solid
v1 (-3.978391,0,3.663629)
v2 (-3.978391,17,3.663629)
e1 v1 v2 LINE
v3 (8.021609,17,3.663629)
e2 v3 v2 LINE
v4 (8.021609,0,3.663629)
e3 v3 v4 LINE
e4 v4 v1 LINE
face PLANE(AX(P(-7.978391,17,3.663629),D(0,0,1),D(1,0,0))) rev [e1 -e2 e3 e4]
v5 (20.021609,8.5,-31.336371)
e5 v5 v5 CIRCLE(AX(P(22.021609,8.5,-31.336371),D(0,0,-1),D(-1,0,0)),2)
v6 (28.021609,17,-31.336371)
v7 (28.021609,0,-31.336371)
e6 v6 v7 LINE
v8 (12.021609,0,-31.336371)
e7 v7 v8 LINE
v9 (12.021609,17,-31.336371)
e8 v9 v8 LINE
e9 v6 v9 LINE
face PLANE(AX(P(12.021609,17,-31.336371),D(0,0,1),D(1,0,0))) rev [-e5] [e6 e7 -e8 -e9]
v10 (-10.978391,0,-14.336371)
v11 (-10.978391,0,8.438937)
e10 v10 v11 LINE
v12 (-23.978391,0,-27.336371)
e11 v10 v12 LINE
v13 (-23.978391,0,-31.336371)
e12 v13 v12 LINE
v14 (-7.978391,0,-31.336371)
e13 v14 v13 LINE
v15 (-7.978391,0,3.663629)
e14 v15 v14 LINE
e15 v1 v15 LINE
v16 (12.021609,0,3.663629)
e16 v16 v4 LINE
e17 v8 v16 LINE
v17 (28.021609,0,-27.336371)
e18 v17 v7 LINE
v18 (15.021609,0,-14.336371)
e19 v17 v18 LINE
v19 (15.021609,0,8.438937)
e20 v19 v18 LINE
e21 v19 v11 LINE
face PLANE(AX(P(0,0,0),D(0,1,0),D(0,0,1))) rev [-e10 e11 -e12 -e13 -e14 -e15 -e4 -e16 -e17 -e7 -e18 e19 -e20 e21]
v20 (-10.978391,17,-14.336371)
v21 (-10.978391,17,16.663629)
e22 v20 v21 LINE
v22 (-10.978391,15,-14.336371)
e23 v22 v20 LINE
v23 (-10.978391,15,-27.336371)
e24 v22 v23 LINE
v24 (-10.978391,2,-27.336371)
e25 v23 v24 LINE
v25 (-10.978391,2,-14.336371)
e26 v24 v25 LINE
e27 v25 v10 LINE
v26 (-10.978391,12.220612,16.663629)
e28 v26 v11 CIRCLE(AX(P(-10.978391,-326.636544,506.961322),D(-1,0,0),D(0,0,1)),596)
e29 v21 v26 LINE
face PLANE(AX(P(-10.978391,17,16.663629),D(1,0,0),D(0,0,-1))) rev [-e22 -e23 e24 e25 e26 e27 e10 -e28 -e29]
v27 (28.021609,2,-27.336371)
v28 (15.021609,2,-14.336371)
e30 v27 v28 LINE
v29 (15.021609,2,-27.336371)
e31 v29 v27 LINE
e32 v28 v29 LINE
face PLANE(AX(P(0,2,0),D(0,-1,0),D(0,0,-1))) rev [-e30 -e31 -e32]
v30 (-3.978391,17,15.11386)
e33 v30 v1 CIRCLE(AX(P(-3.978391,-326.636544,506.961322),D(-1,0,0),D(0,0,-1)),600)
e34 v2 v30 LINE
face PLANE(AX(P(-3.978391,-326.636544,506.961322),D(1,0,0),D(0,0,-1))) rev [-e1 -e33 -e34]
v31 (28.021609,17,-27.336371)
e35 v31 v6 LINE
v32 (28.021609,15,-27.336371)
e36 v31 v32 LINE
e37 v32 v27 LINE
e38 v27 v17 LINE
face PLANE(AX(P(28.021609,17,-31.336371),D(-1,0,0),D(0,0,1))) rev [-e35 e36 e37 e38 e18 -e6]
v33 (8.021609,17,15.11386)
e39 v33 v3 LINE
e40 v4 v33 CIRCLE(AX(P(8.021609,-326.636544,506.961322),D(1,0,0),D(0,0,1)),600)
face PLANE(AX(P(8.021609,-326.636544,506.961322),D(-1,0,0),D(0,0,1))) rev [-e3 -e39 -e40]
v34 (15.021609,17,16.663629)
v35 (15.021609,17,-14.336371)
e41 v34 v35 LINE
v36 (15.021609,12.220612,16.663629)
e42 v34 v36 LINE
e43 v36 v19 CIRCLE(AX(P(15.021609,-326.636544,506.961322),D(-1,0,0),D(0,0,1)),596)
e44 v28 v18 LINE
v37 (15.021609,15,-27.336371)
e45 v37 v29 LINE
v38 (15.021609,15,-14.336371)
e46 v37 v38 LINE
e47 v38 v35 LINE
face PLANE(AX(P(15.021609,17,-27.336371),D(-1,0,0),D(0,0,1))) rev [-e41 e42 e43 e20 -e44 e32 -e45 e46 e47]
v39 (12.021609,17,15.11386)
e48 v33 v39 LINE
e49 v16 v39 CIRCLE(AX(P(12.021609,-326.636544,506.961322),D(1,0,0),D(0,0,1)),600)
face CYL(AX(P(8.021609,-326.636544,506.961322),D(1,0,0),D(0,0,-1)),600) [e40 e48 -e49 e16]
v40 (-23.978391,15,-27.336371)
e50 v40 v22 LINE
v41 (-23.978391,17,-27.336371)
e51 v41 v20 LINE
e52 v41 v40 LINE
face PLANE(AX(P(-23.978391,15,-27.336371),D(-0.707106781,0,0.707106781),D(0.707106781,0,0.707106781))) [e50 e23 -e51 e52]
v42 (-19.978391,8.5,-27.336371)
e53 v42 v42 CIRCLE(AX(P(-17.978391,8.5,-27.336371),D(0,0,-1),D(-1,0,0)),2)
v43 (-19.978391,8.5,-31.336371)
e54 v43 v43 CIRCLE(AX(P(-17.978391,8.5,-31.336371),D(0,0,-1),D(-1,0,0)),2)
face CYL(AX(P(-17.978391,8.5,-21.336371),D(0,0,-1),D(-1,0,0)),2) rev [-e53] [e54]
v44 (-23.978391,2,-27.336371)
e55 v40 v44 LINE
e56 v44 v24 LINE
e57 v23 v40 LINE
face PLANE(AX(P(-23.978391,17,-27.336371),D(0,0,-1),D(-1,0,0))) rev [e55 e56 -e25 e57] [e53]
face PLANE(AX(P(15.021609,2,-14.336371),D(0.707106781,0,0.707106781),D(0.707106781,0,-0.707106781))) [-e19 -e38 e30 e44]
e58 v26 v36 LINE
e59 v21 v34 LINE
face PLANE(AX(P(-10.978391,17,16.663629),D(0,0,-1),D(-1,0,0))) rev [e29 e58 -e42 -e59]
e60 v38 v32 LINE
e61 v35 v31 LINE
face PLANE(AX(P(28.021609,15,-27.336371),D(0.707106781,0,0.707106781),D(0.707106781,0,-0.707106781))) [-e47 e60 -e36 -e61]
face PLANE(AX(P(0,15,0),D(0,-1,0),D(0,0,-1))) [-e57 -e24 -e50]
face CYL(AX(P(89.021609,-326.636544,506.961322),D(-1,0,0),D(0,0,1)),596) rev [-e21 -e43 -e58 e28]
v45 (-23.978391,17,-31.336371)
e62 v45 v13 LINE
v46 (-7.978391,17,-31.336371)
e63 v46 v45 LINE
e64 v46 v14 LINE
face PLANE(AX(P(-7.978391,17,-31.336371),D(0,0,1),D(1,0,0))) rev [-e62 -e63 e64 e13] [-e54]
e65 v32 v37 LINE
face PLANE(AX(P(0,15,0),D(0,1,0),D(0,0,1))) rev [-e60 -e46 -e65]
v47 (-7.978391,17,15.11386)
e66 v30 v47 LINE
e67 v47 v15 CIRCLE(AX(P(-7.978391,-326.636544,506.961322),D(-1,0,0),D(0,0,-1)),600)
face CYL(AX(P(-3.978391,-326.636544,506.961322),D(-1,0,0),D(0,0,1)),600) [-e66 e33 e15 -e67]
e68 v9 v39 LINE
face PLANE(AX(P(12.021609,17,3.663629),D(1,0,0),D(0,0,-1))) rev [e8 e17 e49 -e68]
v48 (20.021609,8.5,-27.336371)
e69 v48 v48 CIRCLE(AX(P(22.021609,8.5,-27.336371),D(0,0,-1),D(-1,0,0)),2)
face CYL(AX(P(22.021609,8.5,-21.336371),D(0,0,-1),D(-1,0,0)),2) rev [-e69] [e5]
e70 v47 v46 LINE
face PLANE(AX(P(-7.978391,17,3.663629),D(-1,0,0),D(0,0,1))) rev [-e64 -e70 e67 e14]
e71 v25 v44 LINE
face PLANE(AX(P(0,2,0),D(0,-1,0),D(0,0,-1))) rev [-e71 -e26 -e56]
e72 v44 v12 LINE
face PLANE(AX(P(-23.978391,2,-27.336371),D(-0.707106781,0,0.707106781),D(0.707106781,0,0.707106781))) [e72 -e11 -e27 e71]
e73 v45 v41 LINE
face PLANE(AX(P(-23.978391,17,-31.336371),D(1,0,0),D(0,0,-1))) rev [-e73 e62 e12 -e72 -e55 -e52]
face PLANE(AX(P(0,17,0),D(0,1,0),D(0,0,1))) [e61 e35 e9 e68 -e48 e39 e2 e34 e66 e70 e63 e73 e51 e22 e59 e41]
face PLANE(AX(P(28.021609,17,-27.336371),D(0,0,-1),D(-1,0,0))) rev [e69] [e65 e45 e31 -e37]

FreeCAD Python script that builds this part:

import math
import FreeCAD as App
import Part
import Sketcher
Q = App.Units.Quantity

doc = App.newDocument("Part")
body = doc.addObject("PartDesign::Body", "Body")

# Sketch on XZ plane
sketch1 = body.newObject("Sketcher::SketchObject", "Sketch")
sketch1.AttachmentSupport = (doc.getObject("XZ_Plane"), [""])
sketch1.MapMode = "FlatFace"
sketch1.addGeometry([
    Part.LineSegment(App.Vector(12.021609, 3.663629, 0), App.Vector(-7.978391, 3.663629, 0)),  # 0
    Part.LineSegment(App.Vector(-7.978391, 3.663629, 0), App.Vector(-7.978391, -31.336371, 0)),  # 1
    Part.LineSegment(App.Vector(-7.978391, -31.336371, 0), App.Vector(-23.978391, -31.336371, 0)),  # 2
    Part.LineSegment(App.Vector(-23.978391, -31.336371, 0), App.Vector(-23.978391, -27.336371, 0)),  # 3
    Part.LineSegment(App.Vector(-23.978391, -27.336371, 0), App.Vector(-10.978391, -27.336371, 0)),  # 4
    Part.LineSegment(App.Vector(-10.978391, -27.336371, 0), App.Vector(-10.978391, 16.663629, 0)),  # 5
    Part.LineSegment(App.Vector(-10.978391, 16.663629, 0), App.Vector(15.021609, 16.663629, 0)),  # 6
    Part.LineSegment(App.Vector(15.021609, 16.663629, 0), App.Vector(15.021609, -27.336371, 0)),  # 7
    Part.LineSegment(App.Vector(15.021609, -27.336371, 0), App.Vector(28.021609, -27.336371, 0)),  # 8
    Part.LineSegment(App.Vector(28.021609, -27.336371, 0), App.Vector(28.021609, -31.336371, 0)),  # 9
    Part.LineSegment(App.Vector(28.021609, -31.336371, 0), App.Vector(12.021609, -31.336371, 0)),  # 10
    Part.LineSegment(App.Vector(12.021609, -31.336371, 0), App.Vector(12.021609, 3.663629, 0)),  # 11
], False)
sketch1.addConstraint([
    Sketcher.Constraint("Coincident", 0, 2, 1, 1),
    Sketcher.Constraint("Coincident", 1, 2, 2, 1),
    Sketcher.Constraint("Coincident", 2, 2, 3, 1),
    Sketcher.Constraint("Coincident", 3, 2, 4, 1),
    Sketcher.Constraint("Coincident", 4, 2, 5, 1),
    Sketcher.Constraint("Coincident", 5, 2, 6, 1),
    Sketcher.Constraint("Coincident", 6, 2, 7, 1),
    Sketcher.Constraint("Coincident", 7, 2, 8, 1),
    Sketcher.Constraint("Coincident", 8, 2, 9, 1),
    Sketcher.Constraint("Coincident", 9, 2, 10, 1),
    Sketcher.Constraint("Coincident", 10, 2, 11, 1),
    Sketcher.Constraint("Coincident", 11, 2, 0, 1),
    Sketcher.Constraint("Horizontal", 0),
    Sketcher.Constraint("Vertical", 1),
    Sketcher.Constraint("Horizontal", 2),
    Sketcher.Constraint("Vertical", 3),
    Sketcher.Constraint("Horizontal", 4),
    Sketcher.Constraint("Vertical", 5),
    Sketcher.Constraint("Horizontal", 6),
    Sketcher.Constraint("Vertical", 7),
    Sketcher.Constraint("Horizontal", 8),
    Sketcher.Constraint("Vertical", 9),
    Sketcher.Constraint("Horizontal", 10),
    Sketcher.Constraint("Vertical", 11),
    Sketcher.Constraint("Horizontal", 4, 2, 7, 2),
    Sketcher.Constraint("Horizontal", 2, 2, 9, 2),
    Sketcher.Constraint("Equal", 4, 8),
    Sketcher.Constraint("Equal", 2, 10),
    Sketcher.Constraint("DistanceX", 0, 2, 0, 1, Q("20 mm")),
    Sketcher.Constraint("DistanceX", 2, 2, 2, 1, Q("16 mm")),
    Sketcher.Constraint("DistanceX", 4, 1, 4, 2, Q("13 mm")),
    Sketcher.Constraint("DistanceY", 1, 2, 1, 1, Q("35 mm")),
    Sketcher.Constraint("DistanceY", 3, 1, 3, 2, Q("4 mm")),
    Sketcher.Constraint("DistanceY", 5, 1, 5, 2, Q("44 mm")),
    Sketcher.Constraint("DistanceX", 0, 2, -1, 1, Q("7.978391 mm")),
    Sketcher.Constraint("DistanceY", -1, 1, 0, 2, Q("3.663629 mm")),
])
pad1 = body.newObject("PartDesign::Pad", "Pad")
pad1.Profile = sketch1
pad1.Length = 17
pad1.Reversed = True

# Sketch on XZ plane
sketch2 = body.newObject("Sketcher::SketchObject", "Sketch001")
sketch2.AttachmentSupport = (doc.getObject("XZ_Plane"), [""])
sketch2.MapMode = "FlatFace"
sketch2.AttachmentOffset = App.Placement(App.Vector(0, 0, -17), App.Rotation())
sketch2.addGeometry([
    Part.LineSegment(App.Vector(-23.978391, -27.336371, 0), App.Vector(-10.978391, -14.336371, 0)),  # 0
    Part.LineSegment(App.Vector(-10.978391, -14.336371, 0), App.Vector(-10.978391, -27.336371, 0)),  # 1
    Part.LineSegment(App.Vector(-10.978391, -27.336371, 0), App.Vector(-23.978391, -27.336371, 0)),  # 2
    Part.LineSegment(App.Vector(15.021609, -14.336371, 0), App.Vector(28.021609, -27.336371, 0)),  # 3
    Part.LineSegment(App.Vector(28.021609, -27.336371, 0), App.Vector(15.021609, -27.336371, 0)),  # 4
    Part.LineSegment(App.Vector(15.021609, -27.336371, 0), App.Vector(15.021609, -14.336371, 0)),  # 5
], False)
sketch2.addConstraint([
    Sketcher.Constraint("Coincident", 0, 2, 1, 1),
    Sketcher.Constraint("Coincident", 1, 2, 2, 1),
    Sketcher.Constraint("Coincident", 2, 2, 0, 1),
    Sketcher.Constraint("Coincident", 3, 2, 4, 1),
    Sketcher.Constraint("Coincident", 4, 2, 5, 1),
    Sketcher.Constraint("Coincident", 5, 2, 3, 1),
    Sketcher.Constraint("Vertical", 1),
    Sketcher.Constraint("Horizontal", 2),
    Sketcher.Constraint("Horizontal", 4),
    Sketcher.Constraint("Vertical", 5),
    Sketcher.Constraint("Perpendicular", 0, 3),
    Sketcher.Constraint("Horizontal", 2, 2, 3, 2),
    Sketcher.Constraint("Horizontal", 0, 2, 5, 2),
    Sketcher.Constraint("Equal", 2, 4),
    Sketcher.Constraint("DistanceX", 2, 2, 2, 1, Q("13 mm")),
    Sketcher.Constraint("DistanceX", 1, 2, 3, 2, Q("39 mm")),
    Sketcher.Constraint("DistanceX", 0, 2, -1, 1, Q("10.978391 mm")),
    Sketcher.Constraint("DistanceY", 0, 2, -1, 1, Q("14.336371 mm")),
])
pad2 = body.newObject("PartDesign::Pad", "Pad001")
pad2.Profile = sketch2
pad2.Length = 2

# Sketch on XZ plane
sketch3 = body.newObject("Sketcher::SketchObject", "Sketch002")
sketch3.AttachmentSupport = (doc.getObject("XZ_Plane"), [""])
sketch3.MapMode = "FlatFace"
sketch3.addGeometry([
    Part.LineSegment(App.Vector(-10.978391, -14.336371, 0), App.Vector(-23.978391, -27.336371, 0)),  # 0
    Part.LineSegment(App.Vector(-23.978391, -27.336371, 0), App.Vector(-10.978391, -27.336371, 0)),  # 1
    Part.LineSegment(App.Vector(-10.978391, -27.336371, 0), App.Vector(-10.978391, -14.336371, 0)),  # 2
    Part.LineSegment(App.Vector(28.021609, -27.336371, 0), App.Vector(15.021609, -14.336371, 0)),  # 3
    Part.LineSegment(App.Vector(15.021609, -14.336371, 0), App.Vector(15.021609, -27.336371, 0)),  # 4
    Part.LineSegment(App.Vector(15.021609, -27.336371, 0), App.Vector(28.021609, -27.336371, 0)),  # 5
], False)
sketch3.addConstraint([
    Sketcher.Constraint("Coincident", 0, 2, 1, 1),
    Sketcher.Constraint("Coincident", 1, 2, 2, 1),
    Sketcher.Constraint("Coincident", 2, 2, 0, 1),
    Sketcher.Constraint("Coincident", 3, 2, 4, 1),
    Sketcher.Constraint("Coincident", 4, 2, 5, 1),
    Sketcher.Constraint("Coincident", 5, 2, 3, 1),
    Sketcher.Constraint("Horizontal", 1),
    Sketcher.Constraint("Vertical", 2),
    Sketcher.Constraint("Vertical", 4),
    Sketcher.Constraint("Horizontal", 5),
    Sketcher.Constraint("Perpendicular", 0, 3),
    Sketcher.Constraint("Horizontal", 2, 2, 3, 2),
    Sketcher.Constraint("Horizontal", 1, 2, 4, 2),
    Sketcher.Constraint("Equal", 1, 5),
    Sketcher.Constraint("DistanceX", 1, 1, 1, 2, Q("13 mm")),
    Sketcher.Constraint("DistanceX", 2, 2, 3, 2, Q("26 mm")),
    Sketcher.Constraint("DistanceX", 0, 2, -1, 1, Q("23.978391 mm")),
    Sketcher.Constraint("DistanceY", 0, 2, -1, 1, Q("27.336371 mm")),
])
pad3 = body.newObject("PartDesign::Pad", "Pad002")
pad3.Profile = sketch3
pad3.Length = 2
pad3.Reversed = True

# Sketch on XY plane
sketch4 = body.newObject("Sketcher::SketchObject", "Sketch003")
sketch4.AttachmentSupport = (doc.getObject("XY_Plane"), [""])
sketch4.MapMode = "FlatFace"
sketch4.AttachmentOffset = App.Placement(App.Vector(0, 0, -31.336371), App.Rotation())
sketch4.addGeometry([
    Part.Circle(App.Vector(22.021609, 8.5, 0), App.Vector(0, 0, 1), 2),
    Part.Circle(App.Vector(-17.978391, 8.5, 0), App.Vector(0, 0, 1), 2),
], False)
sketch4.addConstraint([
    Sketcher.Constraint("Equal", 0, 1),
    Sketcher.Constraint("Horizontal", 0, 3, 1, 3),
    Sketcher.Constraint("Diameter", 0, Q("4 mm")),
    Sketcher.Constraint("DistanceX", 1, 3, 0, 3, Q("40 mm")),
    Sketcher.Constraint("DistanceY", -1, 1, 0, 3, Q("8.5 mm")),
    Sketcher.Constraint("DistanceX", -1, 1, 0, 3, Q("22.021609 mm")),
])
pocket1 = body.newObject("PartDesign::Pocket", "Pocket")
pocket1.Profile = sketch4
pocket1.Length = 10
pocket1.Reversed = True

# Sketch on YZ plane
sketch5 = body.newObject("Sketcher::SketchObject", "Sketch004")
sketch5.AttachmentSupport = (doc.getObject("YZ_Plane"), [""])
sketch5.MapMode = "FlatFace"
sketch5.AttachmentOffset = App.Placement(App.Vector(0, 0, -7.978391), App.Rotation())
sketch5.addGeometry([
    Part.LineSegment(App.Vector(17, -6.66026, 0), App.Vector(17, 15.11386, 0)),
    Part.ArcOfCircle(Part.Circle(App.Vector(-326.636544, 506.961322, 0), App.Vector(0, 0, 1), 600), math.radians(-57.016722), math.radians(-55.059352)),
    Part.LineSegment(App.Vector(0, 3.663629, 0), App.Vector(0, -9.599292, 0)),
    Part.LineSegment(App.Vector(0, -9.599292, 0), App.Vector(17, -6.66026, 0)),
], False)
sketch5.addConstraint([
    Sketcher.Constraint("Coincident", 0, 2, 1, 2),
    Sketcher.Constraint("Coincident", 1, 1, 2, 1),
    Sketcher.Constraint("Coincident", 2, 2, 3, 1),
    Sketcher.Constraint("Coincident", 3, 2, 0, 1),
    Sketcher.Constraint("Vertical", 0),
    Sketcher.Constraint("Vertical", 2),
    Sketcher.Constraint("PointOnObject", 2, 2, -2),
    Sketcher.Constraint("Radius", 1, Q("600 mm")),
    Sketcher.Constraint("DistanceX", -1, 1, 0, 2, Q("17 mm")),
    Sketcher.Constraint("DistanceY", 0, 1, 0, 2, Q("21.77412 mm")),
    Sketcher.Constraint("DistanceY", 2, 2, 2, 1, Q("13.262921 mm")),
    Sketcher.Constraint("DistanceY", -1, 1, 1, 3, Q("506.961322 mm")),
    Sketcher.Constraint("DistanceY", -1, 1, 0, 2, Q("15.11386 mm")),
])
pocket2 = body.newObject("PartDesign::Pocket", "Pocket001")
pocket2.Profile = sketch5
pocket2.Length = 4
pocket2.Reversed = True

# Sketch on YZ plane
sketch6 = body.newObject("Sketcher::SketchObject", "Sketch005")
sketch6.AttachmentSupport = (doc.getObject("YZ_Plane"), [""])
sketch6.MapMode = "FlatFace"
sketch6.AttachmentOffset = App.Placement(App.Vector(0, 0, -10.978391), App.Rotation())
sketch6.addGeometry([
    Part.LineSegment(App.Vector(12.975801, 46.650832, 0), App.Vector(19.275621, 21.615287, 0)),
    Part.ArcOfCircle(Part.Circle(App.Vector(-326.636543, 506.961321, 0), App.Vector(0, 0, 1), 595.999999), math.radians(-58.404094), math.radians(-54.522055)),
    Part.LineSegment(App.Vector(-14.377221, -0.690247, 0), App.Vector(-26.911994, 28.995854, 0)),
    Part.LineSegment(App.Vector(-26.911994, 28.995854, 0), App.Vector(12.975801, 46.650832, 0)),
], False)
sketch6.addConstraint([
    Sketcher.Constraint("Coincident", 0, 2, 1, 2),
    Sketcher.Constraint("Coincident", 1, 1, 2, 1),
    Sketcher.Constraint("Coincident", 2, 2, 3, 1),
    Sketcher.Constraint("Coincident", 3, 2, 0, 1),
    Sketcher.Constraint("Radius", 1, Q("595.999999 mm")),
    Sketcher.Constraint("DistanceX", -1, 1, 3, 2, Q("12.975801 mm")),
    Sketcher.Constraint("DistanceY", 1, 1, 2, 2, Q("29.6861 mm")),
    Sketcher.Constraint("DistanceY", -1, 1, 1, 3, Q("506.961321 mm")),
    Sketcher.Constraint("DistanceX", -1, 1, 0, 2, Q("19.275621 mm")),
    Sketcher.Constraint("DistanceX", 1, 3, 2, 2, Q("299.724549 mm")),
    Sketcher.Constraint("DistanceY", 2, 2, 3, 2, Q("17.654979 mm")),
    Sketcher.Constraint("DistanceY", 3, 2, 1, 3, Q("460.310489 mm")),
    Sketcher.Constraint("Distance", 0, Q("25.816008 mm")),
])
pocket3 = body.newObject("PartDesign::Pocket", "Pocket002")
pocket3.Profile = sketch6
pocket3.Length = 100
pocket3.Reversed = True

# Sketch on YZ plane
sketch7 = body.newObject("Sketcher::SketchObject", "Sketch006")
sketch7.AttachmentSupport = (doc.getObject("YZ_Plane"), [""])
sketch7.MapMode = "FlatFace"
sketch7.AttachmentOffset = App.Placement(App.Vector(0, 0, 12.021609), App.Rotation())
sketch7.addGeometry([
    Part.LineSegment(App.Vector(17, -11.188224, 0), App.Vector(0, -11.188224, 0)),
    Part.LineSegment(App.Vector(0, -11.188224, 0), App.Vector(0, 3.663629, 0)),
    Part.ArcOfCircle(Part.Circle(App.Vector(-326.636544, 506.961322, 0), App.Vector(0, 0, 1), 600), math.radians(-57.016722), math.radians(-55.059352)),
    Part.LineSegment(App.Vector(17, 15.11386, 0), App.Vector(17, -11.188224, 0)),
], False)
sketch7.addConstraint([
    Sketcher.Constraint("Coincident", 0, 2, 1, 1),
    Sketcher.Constraint("Coincident", 1, 2, 2, 1),
    Sketcher.Constraint("Coincident", 2, 2, 3, 1),
    Sketcher.Constraint("Coincident", 3, 2, 0, 1),
    Sketcher.Constraint("Horizontal", 0),
    Sketcher.Constraint("Vertical", 1),
    Sketcher.Constraint("Vertical", 3),
    Sketcher.Constraint("PointOnObject", 0, 2, -2),
    Sketcher.Constraint("Radius", 2, Q("600 mm")),
    Sketcher.Constraint("DistanceX", 0, 2, 0, 1, Q("17 mm")),
    Sketcher.Constraint("DistanceY", 1, 1, 1, 2, Q("14.851852 mm")),
    Sketcher.Constraint("DistanceY", 3, 2, 3, 1, Q("26.302084 mm")),
    Sketcher.Constraint("DistanceY", -1, 1, 2, 3, Q("506.961322 mm")),
])
pocket4 = body.newObject("PartDesign::Pocket", "Pocket003")
pocket4.Profile = sketch7
pocket4.Length = 4

doc.recompute()
